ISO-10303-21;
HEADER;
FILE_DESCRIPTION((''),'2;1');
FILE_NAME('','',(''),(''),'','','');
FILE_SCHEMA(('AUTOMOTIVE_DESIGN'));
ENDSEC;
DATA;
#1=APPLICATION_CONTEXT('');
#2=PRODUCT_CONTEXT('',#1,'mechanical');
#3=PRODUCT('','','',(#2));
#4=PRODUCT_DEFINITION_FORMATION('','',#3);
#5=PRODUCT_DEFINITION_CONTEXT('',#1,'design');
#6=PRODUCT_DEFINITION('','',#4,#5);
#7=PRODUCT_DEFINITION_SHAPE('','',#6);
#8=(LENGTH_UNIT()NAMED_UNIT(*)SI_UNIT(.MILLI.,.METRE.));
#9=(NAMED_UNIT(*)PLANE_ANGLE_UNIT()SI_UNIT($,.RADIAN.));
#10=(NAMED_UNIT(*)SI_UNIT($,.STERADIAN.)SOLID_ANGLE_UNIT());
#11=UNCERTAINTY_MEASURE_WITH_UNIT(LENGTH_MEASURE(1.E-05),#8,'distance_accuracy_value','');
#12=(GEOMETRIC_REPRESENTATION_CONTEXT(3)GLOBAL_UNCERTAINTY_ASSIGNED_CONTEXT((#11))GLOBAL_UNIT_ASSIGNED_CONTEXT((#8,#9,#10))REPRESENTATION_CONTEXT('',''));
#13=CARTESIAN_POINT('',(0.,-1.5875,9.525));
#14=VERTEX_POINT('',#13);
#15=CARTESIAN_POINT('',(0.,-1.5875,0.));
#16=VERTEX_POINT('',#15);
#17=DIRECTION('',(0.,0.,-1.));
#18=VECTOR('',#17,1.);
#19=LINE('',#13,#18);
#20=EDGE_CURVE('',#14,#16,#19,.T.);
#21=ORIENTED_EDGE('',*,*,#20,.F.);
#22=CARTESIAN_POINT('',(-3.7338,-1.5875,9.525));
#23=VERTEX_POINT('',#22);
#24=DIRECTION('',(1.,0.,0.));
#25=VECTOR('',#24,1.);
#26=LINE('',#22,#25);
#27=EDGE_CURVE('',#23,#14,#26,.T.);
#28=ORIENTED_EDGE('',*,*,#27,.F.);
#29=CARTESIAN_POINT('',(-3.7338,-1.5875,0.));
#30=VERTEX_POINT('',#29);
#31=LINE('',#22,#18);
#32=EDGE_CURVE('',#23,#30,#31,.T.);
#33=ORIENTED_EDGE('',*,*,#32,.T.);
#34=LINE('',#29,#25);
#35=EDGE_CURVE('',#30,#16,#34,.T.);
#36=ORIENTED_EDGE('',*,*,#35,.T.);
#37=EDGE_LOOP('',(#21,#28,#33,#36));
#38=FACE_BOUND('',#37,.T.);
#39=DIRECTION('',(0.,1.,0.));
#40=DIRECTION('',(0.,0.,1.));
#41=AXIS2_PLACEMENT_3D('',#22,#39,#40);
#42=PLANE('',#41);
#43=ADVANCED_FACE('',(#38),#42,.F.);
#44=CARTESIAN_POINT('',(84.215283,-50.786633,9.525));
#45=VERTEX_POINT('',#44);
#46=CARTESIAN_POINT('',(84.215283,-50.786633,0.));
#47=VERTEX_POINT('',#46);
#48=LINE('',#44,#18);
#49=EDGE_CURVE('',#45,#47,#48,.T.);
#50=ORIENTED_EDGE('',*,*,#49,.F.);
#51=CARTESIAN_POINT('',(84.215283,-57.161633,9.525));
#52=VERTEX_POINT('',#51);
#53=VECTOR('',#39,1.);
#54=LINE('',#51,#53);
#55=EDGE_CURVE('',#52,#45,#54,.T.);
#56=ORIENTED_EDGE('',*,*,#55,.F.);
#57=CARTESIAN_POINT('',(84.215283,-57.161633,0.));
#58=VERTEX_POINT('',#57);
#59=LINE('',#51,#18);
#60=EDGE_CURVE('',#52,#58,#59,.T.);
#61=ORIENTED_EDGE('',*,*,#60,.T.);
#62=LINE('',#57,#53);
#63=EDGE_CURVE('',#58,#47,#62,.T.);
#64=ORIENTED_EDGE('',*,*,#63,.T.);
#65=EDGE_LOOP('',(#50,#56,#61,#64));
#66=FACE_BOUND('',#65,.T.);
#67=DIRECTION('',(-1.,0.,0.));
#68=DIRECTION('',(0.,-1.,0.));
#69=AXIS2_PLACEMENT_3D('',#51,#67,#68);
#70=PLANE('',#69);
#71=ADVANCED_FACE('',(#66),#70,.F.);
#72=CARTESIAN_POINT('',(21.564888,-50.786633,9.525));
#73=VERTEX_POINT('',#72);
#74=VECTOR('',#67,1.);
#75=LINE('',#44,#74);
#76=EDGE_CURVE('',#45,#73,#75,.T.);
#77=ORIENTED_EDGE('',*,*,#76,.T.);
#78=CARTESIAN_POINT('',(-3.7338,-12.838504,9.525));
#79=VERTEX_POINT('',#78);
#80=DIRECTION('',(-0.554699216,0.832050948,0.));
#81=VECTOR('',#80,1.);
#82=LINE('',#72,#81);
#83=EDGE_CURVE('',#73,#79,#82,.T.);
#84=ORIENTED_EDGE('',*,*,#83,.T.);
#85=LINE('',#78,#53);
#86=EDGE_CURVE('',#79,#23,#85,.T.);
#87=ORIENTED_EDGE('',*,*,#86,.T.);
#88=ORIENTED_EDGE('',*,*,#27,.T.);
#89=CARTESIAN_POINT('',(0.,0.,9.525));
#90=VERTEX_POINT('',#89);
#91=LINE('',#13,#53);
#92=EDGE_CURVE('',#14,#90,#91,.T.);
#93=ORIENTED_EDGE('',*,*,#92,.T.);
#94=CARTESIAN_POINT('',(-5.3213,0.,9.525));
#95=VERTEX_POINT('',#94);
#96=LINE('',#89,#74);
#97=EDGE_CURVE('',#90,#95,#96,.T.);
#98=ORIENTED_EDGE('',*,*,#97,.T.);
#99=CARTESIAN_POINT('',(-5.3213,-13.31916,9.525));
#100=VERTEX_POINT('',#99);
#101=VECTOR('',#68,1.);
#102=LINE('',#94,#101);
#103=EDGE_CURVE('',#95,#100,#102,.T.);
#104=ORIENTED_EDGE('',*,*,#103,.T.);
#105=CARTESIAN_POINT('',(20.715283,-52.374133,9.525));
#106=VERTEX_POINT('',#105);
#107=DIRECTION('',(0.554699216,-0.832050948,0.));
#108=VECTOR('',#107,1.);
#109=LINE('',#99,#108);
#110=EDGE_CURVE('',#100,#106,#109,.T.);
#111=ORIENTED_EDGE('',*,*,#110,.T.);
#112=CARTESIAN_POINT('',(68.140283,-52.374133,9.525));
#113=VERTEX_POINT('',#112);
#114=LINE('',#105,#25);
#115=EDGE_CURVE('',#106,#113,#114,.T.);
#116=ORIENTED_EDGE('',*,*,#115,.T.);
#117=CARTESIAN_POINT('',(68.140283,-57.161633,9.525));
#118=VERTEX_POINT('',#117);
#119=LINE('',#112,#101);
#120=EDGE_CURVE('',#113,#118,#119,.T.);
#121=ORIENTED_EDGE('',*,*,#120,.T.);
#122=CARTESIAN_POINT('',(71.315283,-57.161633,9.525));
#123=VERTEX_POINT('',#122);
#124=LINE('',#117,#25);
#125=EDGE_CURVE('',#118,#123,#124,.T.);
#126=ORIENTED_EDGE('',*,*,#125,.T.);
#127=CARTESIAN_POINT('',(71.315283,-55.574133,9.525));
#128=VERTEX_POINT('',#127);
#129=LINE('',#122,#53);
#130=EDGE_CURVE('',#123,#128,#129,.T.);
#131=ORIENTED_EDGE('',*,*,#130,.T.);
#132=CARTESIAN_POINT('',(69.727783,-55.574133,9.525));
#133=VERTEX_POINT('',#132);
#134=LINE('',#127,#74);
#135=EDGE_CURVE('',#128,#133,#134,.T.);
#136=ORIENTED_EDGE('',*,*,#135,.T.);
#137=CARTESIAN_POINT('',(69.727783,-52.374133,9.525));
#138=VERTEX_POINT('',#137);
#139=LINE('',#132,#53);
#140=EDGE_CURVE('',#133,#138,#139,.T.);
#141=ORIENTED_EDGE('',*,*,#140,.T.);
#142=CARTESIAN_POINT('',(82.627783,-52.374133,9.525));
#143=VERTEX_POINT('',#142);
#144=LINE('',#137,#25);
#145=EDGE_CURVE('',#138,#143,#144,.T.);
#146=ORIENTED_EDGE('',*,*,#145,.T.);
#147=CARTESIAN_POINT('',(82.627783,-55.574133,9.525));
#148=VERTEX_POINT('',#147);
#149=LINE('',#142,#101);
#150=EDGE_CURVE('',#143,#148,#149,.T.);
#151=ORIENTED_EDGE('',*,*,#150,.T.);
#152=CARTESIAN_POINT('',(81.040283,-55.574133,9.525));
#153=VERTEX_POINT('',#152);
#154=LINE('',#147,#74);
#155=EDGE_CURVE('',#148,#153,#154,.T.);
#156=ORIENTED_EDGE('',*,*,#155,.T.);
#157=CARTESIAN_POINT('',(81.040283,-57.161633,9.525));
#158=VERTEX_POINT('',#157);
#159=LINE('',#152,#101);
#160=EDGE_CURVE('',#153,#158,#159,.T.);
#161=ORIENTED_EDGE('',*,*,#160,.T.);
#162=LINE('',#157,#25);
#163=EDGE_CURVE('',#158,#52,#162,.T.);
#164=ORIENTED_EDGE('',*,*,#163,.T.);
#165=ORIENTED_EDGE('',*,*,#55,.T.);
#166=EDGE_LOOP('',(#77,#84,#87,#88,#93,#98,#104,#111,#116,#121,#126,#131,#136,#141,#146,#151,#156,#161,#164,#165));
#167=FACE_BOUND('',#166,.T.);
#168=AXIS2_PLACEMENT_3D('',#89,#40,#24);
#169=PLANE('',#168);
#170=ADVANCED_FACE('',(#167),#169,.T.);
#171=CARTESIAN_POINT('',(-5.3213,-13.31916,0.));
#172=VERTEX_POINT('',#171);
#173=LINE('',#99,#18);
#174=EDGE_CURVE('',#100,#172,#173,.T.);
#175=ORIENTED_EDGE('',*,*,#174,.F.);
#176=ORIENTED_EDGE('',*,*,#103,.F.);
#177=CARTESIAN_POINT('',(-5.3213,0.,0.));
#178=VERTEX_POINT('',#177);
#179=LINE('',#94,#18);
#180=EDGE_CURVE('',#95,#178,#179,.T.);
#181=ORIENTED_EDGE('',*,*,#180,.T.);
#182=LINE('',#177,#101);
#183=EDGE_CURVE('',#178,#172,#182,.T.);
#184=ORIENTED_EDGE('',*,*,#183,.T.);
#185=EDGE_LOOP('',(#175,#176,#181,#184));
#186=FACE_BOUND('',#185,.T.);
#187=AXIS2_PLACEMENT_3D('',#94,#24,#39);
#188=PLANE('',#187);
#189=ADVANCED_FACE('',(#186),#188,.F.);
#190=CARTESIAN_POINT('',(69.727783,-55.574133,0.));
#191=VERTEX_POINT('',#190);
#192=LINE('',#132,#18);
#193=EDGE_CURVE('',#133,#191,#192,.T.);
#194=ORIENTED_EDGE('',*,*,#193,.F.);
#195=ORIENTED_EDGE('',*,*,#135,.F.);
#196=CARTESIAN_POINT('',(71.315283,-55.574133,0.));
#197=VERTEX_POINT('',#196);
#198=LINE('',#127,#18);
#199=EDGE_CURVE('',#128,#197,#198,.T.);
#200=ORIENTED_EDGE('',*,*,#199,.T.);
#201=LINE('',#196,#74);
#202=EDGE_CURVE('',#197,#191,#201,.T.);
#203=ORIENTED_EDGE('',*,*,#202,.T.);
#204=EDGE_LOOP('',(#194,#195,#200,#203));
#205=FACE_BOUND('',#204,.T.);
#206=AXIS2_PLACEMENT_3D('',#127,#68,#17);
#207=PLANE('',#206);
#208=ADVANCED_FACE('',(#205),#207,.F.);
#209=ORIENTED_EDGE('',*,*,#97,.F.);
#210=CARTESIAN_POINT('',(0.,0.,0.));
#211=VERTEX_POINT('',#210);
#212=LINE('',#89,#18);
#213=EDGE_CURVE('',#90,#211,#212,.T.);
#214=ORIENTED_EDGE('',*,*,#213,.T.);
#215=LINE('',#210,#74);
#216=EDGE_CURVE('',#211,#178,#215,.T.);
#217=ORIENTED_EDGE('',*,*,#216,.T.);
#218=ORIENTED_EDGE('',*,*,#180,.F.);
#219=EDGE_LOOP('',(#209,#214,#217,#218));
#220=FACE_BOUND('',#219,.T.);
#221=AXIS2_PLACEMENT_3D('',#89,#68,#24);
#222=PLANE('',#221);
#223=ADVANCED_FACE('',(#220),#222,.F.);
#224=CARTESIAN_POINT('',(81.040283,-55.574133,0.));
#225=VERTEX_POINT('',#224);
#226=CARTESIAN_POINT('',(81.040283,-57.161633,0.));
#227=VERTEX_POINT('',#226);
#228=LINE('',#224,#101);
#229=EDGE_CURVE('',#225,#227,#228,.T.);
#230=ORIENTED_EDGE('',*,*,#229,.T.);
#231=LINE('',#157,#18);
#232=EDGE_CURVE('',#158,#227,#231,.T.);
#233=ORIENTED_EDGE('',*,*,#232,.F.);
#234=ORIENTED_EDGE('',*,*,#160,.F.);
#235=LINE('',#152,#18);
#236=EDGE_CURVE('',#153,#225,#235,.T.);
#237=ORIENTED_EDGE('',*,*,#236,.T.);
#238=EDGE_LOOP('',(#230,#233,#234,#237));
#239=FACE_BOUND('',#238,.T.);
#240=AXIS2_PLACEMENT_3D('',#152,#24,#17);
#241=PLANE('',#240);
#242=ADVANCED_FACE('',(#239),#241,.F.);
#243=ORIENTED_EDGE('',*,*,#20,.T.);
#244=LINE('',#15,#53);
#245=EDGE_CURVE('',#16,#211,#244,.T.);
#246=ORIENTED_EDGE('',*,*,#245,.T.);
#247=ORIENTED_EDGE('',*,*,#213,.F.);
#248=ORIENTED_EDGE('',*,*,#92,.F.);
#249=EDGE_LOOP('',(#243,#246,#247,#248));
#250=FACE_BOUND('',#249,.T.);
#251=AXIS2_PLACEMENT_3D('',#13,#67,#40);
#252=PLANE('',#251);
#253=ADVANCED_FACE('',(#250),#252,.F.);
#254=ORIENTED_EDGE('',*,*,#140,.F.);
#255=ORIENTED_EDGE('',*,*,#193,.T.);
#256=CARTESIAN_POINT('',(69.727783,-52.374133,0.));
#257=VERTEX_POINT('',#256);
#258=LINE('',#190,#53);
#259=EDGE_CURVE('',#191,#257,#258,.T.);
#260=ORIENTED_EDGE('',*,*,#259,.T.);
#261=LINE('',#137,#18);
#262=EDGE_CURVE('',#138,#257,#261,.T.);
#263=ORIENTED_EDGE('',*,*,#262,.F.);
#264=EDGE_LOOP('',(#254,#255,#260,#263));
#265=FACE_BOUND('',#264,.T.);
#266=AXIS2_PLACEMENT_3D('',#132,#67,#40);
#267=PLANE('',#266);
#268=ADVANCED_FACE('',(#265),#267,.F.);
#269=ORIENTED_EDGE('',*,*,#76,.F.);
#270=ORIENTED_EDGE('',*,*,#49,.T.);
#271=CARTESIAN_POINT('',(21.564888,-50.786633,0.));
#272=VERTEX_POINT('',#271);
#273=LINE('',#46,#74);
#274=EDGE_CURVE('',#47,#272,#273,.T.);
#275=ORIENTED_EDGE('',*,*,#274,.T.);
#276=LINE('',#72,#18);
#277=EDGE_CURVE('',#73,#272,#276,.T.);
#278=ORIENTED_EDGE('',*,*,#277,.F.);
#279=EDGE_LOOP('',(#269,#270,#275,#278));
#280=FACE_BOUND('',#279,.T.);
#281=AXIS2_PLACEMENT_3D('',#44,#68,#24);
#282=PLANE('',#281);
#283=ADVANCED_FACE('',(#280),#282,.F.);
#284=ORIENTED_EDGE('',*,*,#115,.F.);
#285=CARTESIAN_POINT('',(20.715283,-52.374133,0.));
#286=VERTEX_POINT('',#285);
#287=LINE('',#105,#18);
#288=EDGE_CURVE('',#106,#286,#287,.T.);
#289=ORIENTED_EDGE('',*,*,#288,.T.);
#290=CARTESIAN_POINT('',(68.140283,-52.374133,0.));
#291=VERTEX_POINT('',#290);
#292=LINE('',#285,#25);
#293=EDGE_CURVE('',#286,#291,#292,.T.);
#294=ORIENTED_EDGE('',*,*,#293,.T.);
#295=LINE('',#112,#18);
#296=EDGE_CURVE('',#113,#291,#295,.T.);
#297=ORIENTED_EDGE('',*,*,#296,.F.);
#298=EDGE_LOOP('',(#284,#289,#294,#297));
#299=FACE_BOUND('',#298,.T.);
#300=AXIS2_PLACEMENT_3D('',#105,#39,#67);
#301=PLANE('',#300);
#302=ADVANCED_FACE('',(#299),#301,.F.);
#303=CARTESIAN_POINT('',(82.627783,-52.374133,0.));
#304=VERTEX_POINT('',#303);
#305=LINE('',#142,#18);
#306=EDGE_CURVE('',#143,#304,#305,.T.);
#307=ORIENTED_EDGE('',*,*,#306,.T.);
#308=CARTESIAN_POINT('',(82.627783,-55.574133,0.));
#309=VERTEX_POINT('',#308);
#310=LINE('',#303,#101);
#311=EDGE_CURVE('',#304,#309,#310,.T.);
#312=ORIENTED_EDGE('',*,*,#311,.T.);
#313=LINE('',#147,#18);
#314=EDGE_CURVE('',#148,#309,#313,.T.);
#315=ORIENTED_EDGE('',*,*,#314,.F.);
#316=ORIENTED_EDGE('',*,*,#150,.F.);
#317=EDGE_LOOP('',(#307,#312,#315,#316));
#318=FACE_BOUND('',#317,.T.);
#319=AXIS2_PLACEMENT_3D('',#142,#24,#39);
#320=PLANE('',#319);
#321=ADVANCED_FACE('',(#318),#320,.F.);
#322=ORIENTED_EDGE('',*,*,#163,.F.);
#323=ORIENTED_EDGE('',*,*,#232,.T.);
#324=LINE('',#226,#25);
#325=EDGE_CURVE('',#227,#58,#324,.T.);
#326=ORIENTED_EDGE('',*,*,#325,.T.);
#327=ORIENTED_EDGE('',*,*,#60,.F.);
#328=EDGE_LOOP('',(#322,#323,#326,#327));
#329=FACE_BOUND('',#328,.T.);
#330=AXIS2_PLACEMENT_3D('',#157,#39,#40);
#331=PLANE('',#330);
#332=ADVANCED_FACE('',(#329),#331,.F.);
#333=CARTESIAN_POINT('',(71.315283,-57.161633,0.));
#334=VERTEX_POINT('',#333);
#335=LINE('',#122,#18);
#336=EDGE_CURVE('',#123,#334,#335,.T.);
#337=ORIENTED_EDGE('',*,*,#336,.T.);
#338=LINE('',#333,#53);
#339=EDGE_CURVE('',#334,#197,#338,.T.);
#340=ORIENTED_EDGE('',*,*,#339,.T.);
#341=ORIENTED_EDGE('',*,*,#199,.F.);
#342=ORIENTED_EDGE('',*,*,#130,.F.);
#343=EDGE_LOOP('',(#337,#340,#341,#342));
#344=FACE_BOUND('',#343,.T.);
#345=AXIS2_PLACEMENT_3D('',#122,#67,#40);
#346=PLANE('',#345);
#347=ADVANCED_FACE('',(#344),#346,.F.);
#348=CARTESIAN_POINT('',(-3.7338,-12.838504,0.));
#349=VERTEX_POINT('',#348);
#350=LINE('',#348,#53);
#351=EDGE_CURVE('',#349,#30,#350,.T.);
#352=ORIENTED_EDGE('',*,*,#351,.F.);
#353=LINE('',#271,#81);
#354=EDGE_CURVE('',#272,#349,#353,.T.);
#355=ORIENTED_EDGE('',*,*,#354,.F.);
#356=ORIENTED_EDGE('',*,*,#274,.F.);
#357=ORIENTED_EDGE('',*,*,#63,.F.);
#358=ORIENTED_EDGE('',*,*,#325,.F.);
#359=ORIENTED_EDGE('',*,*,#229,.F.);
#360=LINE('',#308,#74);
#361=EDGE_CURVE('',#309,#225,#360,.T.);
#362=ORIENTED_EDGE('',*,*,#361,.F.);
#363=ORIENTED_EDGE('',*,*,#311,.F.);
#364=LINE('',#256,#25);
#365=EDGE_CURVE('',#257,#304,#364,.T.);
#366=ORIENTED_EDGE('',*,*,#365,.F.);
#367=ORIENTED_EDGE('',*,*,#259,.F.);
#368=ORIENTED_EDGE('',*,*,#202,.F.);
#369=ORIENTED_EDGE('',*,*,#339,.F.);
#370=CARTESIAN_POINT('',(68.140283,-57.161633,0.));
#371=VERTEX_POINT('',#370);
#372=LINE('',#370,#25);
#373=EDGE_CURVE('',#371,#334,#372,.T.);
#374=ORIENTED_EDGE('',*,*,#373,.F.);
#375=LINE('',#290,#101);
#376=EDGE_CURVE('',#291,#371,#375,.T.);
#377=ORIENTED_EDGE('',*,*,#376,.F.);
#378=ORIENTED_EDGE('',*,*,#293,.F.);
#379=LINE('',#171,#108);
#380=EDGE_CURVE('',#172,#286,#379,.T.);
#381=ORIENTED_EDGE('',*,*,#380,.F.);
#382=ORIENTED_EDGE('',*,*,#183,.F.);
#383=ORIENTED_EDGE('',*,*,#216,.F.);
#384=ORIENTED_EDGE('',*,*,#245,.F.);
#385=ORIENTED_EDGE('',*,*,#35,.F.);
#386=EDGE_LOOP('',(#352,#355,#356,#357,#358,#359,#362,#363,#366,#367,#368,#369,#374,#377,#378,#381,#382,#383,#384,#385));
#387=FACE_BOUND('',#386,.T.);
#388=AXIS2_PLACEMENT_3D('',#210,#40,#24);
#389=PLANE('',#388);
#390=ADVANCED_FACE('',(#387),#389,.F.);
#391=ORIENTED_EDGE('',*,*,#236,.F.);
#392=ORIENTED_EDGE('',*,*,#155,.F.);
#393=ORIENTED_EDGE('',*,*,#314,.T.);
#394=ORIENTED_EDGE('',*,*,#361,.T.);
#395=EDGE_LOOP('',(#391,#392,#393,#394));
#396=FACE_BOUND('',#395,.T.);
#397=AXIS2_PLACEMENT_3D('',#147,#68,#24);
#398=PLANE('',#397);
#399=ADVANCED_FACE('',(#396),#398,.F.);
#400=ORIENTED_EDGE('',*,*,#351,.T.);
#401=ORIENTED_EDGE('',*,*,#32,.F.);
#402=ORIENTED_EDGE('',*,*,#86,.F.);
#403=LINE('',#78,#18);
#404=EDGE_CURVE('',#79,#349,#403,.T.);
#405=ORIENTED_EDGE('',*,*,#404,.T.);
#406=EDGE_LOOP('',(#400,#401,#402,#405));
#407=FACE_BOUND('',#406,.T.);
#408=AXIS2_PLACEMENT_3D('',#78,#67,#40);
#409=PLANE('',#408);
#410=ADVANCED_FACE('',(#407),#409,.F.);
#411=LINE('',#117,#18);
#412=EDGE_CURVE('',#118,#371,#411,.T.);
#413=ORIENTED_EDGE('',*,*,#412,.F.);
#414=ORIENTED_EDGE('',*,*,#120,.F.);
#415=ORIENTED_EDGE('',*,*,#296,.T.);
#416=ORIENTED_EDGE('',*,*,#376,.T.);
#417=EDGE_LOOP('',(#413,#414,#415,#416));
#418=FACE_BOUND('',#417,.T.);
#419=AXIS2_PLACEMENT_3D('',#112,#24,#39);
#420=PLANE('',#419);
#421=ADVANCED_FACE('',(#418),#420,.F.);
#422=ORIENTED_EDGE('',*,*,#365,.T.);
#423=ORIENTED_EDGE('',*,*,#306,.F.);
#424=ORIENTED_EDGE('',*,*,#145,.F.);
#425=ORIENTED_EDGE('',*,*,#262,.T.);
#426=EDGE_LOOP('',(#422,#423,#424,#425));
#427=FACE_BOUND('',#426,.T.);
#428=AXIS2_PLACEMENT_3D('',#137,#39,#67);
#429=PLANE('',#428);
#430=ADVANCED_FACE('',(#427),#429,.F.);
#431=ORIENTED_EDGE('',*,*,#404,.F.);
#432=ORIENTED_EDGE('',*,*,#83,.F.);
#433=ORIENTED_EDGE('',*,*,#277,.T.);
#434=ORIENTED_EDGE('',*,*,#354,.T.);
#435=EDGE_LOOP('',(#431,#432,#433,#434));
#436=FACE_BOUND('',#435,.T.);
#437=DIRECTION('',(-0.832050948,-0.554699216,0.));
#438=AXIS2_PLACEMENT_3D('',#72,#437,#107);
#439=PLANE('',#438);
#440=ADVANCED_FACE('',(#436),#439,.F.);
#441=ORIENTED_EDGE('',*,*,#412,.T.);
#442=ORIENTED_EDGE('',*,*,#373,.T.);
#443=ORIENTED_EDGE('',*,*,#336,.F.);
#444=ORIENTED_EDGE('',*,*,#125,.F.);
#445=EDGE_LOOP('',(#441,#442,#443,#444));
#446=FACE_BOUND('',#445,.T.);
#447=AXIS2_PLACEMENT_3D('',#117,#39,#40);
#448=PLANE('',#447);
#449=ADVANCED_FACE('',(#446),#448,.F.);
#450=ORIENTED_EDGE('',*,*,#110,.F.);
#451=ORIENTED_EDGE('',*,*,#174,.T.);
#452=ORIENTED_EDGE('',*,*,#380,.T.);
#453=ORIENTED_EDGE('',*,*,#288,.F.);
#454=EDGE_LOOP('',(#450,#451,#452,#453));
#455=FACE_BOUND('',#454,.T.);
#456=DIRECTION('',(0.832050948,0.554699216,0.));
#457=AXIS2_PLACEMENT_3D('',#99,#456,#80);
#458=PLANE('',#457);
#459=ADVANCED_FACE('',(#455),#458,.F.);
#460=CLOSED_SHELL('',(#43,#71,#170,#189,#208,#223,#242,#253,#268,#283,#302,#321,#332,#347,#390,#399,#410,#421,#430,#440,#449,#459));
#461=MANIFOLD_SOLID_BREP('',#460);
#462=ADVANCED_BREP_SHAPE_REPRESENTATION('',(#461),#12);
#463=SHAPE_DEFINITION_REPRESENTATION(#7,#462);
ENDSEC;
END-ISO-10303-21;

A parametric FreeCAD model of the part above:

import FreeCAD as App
import Part
import Sketcher
Q = App.Units.Quantity


def add_polygon(sketch, points):
    """Adds a closed chain of lines whose ends are joined by coincident constraints."""
    first, n = sketch.GeometryCount, len(points)
    for a, b in zip(points, points[1:] + points[:1]):
        sketch.addGeometry(Part.LineSegment(App.Vector(*a, 0), App.Vector(*b, 0)), False)
    for i in range(n):
        sketch.addConstraint(Sketcher.Constraint("Coincident", first + i, 2, first + (i + 1) % n, 1))

doc = App.newDocument("Part")
body = doc.addObject("PartDesign::Body", "Body")

# Sketch on XY plane
sketch1 = body.newObject("Sketcher::SketchObject", "Sketch")
sketch1.AttachmentSupport = (doc.getObject("XY_Plane"), [""])
sketch1.MapMode = "FlatFace"
add_polygon(sketch1, [(0, 0), (-5.3, 0), (-5.3, -13.3), (20.7, -52.4), (68.1, -52.4), (68.1, -57.2), (71.3, -57.2), (71.3, -55.6), (69.7, -55.6), (69.7, -52.4), (82.6, -52.4), (82.6, -55.6), (81, -55.6), (81, -57.2), (84.2, -57.2), (84.2, -50.8), (21.6, -50.8), (-3.7, -12.8), (-3.7, -1.6), (0, -1.6)])  # lines 0-19
sketch1.addConstraint([
    Sketcher.Constraint("Horizontal", 0),
    Sketcher.Constraint("Vertical", 1),
    Sketcher.Constraint("Horizontal", 3),
    Sketcher.Constraint("Vertical", 4),
    Sketcher.Constraint("Horizontal", 5),
    Sketcher.Constraint("Vertical", 6),
    Sketcher.Constraint("Horizontal", 7),
    Sketcher.Constraint("Vertical", 8),
    Sketcher.Constraint("Horizontal", 9),
    Sketcher.Constraint("Vertical", 10),
    Sketcher.Constraint("Horizontal", 11),
    Sketcher.Constraint("Vertical", 12),
    Sketcher.Constraint("Horizontal", 13),
    Sketcher.Constraint("Vertical", 14),
    Sketcher.Constraint("Horizontal", 15),
    Sketcher.Constraint("Vertical", 17),
    Sketcher.Constraint("Horizontal", 18),
    Sketcher.Constraint("Vertical", 19),
    Sketcher.Constraint("Coincident", 19, 2, -1, 1),
    Sketcher.Constraint("Parallel", 2, 16),
    Sketcher.Constraint("Horizontal", 3, 2, 8, 2),
    Sketcher.Constraint("Horizontal", 7, 2, 10, 2),
    Sketcher.Constraint("Horizontal", 5, 2, 12, 2),
    Sketcher.Constraint("Equal", 7, 11),
    Sketcher.Constraint("Equal", 5, 13),
    Sketcher.Constraint("Equal", 11, 6),
    Sketcher.Constraint("Equal", 12, 19),
    Sketcher.Constraint("DistanceX", 5, 1, 5, 2, Q("0.125 in")),
    Sketcher.Constraint("DistanceX", 7, 2, 7, 1, Q("0.0625 in")),
    Sketcher.Constraint("DistanceX", 18, 1, 18, 2, Q("0.147 in")),
    Sketcher.Constraint("Angle", 2, Q("-56.31 deg")),
    Sketcher.Constraint("DistanceX", 0, 2, 0, 1, Q("0.2095 in")),
    Sketcher.Constraint("DistanceY", 9, 2, 14, 2, Q("0.0625 in")),
    Sketcher.Constraint("DistanceX", 3, 1, 3, 2, Q("47.425 mm")),
    Sketcher.Constraint("DistanceX", 9, 1, 9, 2, Q("12.9 mm")),
    Sketcher.Constraint("DistanceY", 4, 2, 4, 1, Q("4.7875 mm")),
    Sketcher.Constraint("Distance", 2, Q("46.9382 mm")),
    Sketcher.Constraint("DistanceY", 1, 2, 1, 1, Q("13.31916 mm")),
    Sketcher.Constraint("Distance", 16, Q("45.607939 mm")),
])
pad1 = body.newObject("PartDesign::Pad", "Pad")
pad1.Profile = sketch1
pad1.Length = Q("0.375 in")

doc.recompute()
